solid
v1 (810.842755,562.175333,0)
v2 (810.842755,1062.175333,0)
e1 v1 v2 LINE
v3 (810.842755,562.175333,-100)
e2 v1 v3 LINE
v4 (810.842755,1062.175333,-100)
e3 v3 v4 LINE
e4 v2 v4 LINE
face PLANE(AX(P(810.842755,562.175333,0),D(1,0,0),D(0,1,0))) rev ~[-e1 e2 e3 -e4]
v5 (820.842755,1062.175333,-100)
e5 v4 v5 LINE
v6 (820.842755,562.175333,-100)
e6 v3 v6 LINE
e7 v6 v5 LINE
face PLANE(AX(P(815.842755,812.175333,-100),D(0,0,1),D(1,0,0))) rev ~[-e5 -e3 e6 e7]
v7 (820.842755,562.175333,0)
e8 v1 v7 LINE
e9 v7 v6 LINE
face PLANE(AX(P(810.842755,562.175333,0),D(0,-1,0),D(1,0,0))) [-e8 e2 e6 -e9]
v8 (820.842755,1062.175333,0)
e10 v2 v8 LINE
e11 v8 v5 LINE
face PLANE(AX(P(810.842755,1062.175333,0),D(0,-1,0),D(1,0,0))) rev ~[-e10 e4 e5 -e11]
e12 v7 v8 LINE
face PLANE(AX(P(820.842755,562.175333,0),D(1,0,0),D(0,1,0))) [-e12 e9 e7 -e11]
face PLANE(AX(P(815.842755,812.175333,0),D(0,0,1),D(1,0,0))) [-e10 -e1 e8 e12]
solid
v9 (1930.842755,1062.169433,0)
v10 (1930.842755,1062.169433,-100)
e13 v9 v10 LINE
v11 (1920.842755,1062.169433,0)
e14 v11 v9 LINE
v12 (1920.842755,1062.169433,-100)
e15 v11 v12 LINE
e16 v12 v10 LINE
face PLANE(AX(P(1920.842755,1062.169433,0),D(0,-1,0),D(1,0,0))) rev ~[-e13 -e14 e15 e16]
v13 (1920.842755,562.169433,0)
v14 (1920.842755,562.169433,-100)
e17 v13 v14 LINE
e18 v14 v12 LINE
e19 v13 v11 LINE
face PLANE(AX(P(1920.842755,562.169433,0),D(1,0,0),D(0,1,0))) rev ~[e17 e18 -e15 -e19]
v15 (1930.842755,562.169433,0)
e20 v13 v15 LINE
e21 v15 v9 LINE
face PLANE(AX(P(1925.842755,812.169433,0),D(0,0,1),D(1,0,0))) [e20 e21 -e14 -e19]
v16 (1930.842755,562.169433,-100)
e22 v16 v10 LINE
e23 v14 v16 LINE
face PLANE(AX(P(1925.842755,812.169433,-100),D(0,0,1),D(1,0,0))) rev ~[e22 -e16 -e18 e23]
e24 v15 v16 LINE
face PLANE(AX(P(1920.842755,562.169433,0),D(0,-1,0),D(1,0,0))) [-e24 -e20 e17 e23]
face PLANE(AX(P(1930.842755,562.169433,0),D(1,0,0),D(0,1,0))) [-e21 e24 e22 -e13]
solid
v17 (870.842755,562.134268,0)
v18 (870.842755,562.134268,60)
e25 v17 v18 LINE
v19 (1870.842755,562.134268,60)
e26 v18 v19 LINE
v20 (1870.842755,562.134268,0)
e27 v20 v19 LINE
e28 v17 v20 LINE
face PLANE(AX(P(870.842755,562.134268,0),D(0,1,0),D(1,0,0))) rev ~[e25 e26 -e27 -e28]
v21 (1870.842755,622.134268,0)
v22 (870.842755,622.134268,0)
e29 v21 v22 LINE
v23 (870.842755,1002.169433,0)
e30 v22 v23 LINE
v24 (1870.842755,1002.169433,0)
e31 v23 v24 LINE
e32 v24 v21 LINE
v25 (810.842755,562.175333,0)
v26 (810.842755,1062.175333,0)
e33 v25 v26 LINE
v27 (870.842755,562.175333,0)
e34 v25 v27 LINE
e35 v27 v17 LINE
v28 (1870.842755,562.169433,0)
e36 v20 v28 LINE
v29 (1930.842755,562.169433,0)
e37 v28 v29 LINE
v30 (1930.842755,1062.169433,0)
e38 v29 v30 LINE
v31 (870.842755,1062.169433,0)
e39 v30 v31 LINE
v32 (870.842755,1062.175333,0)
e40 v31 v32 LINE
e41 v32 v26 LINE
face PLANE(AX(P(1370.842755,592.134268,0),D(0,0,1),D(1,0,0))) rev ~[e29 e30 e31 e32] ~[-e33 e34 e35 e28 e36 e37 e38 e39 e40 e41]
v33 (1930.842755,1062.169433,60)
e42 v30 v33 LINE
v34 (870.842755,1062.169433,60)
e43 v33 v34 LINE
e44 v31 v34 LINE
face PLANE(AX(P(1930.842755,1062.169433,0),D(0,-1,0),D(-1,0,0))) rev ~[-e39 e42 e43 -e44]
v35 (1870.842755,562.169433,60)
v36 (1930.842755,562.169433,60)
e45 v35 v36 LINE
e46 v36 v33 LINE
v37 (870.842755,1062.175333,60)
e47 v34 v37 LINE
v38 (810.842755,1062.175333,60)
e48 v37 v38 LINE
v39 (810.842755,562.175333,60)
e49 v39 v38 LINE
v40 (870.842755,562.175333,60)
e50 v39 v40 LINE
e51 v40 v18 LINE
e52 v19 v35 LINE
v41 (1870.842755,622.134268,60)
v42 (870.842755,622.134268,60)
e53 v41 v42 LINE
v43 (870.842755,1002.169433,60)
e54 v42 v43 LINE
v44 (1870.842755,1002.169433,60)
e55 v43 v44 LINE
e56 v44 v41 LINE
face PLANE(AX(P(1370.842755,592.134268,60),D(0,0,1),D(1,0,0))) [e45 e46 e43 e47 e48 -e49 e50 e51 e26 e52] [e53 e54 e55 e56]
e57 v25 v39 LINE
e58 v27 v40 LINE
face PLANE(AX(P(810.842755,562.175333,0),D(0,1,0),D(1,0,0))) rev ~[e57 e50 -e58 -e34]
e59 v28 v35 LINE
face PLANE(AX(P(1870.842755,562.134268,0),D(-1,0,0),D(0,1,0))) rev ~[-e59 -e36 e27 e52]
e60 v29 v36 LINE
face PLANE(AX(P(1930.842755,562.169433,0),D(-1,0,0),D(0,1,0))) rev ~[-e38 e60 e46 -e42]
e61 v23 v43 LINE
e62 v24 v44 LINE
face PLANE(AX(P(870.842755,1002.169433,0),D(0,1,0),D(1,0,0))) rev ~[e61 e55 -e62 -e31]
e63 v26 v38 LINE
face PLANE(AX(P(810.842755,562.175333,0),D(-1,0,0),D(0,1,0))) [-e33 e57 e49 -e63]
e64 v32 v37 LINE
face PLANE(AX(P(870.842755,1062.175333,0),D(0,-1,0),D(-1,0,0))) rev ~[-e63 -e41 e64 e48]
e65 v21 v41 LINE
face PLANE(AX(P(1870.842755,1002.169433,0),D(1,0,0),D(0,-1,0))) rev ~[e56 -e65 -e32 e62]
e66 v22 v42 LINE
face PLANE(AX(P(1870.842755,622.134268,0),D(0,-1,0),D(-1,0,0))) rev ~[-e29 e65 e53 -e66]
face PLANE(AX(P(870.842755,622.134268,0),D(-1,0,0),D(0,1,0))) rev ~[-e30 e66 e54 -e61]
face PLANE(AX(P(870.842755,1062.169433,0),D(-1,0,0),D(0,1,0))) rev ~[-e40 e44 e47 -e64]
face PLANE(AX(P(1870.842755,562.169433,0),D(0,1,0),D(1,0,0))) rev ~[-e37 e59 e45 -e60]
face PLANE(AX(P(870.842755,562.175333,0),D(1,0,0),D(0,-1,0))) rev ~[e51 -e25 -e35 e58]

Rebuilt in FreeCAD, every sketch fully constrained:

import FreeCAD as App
import Part
import Sketcher
from FreeCAD import Vector


def add_polygon(sketch, points):
    """Adds a closed chain of lines whose ends are joined by coincident constraints."""
    first, n = sketch.GeometryCount, len(points)
    for a, b in zip(points, points[1:] + points[:1]):
        sketch.addGeometry(Part.LineSegment(App.Vector(*a, 0), App.Vector(*b, 0)), False)
    for i in range(n):
        sketch.addConstraint(Sketcher.Constraint("Coincident", first + i, 2, first + (i + 1) % n, 1))

doc = App.newDocument("Part")
body = doc.addObject("PartDesign::Body", "Body")

# Sketch on XY plane
sketch1 = body.newObject("Sketcher::SketchObject", "Sketch")
sketch1.AttachmentSupport = (doc.getObject("XY_Plane"), [""])
sketch1.MapMode = "FlatFace"
add_polygon(sketch1, [(870.843, 1062.169), (870.843, 1062.175), (810.843, 1062.175), (810.843, 562.175), (870.843, 562.175), (870.843, 562.134), (1870.843, 562.134), (1870.843, 562.169), (1930.843, 562.169), (1930.843, 1062.169)])  # lines 0-9
add_polygon(sketch1, [(1870.843, 622.134), (870.843, 622.134), (870.843, 1002.169), (1870.843, 1002.169)])  # lines 10-13
sketch1.addConstraint([
    Sketcher.Constraint("Vertical", 0),
    Sketcher.Constraint("Horizontal", 1),
    Sketcher.Constraint("Vertical", 2),
    Sketcher.Constraint("Horizontal", 3),
    Sketcher.Constraint("Vertical", 4),
    Sketcher.Constraint("Horizontal", 5),
    Sketcher.Constraint("Vertical", 6),
    Sketcher.Constraint("Horizontal", 7),
    Sketcher.Constraint("Vertical", 8),
    Sketcher.Constraint("Horizontal", 9),
    Sketcher.Constraint("Horizontal", 10),
    Sketcher.Constraint("Vertical", 11),
    Sketcher.Constraint("Horizontal", 12),
    Sketcher.Constraint("Vertical", 13),
    Sketcher.Constraint("Vertical", 0, 2, 3, 2),
    Sketcher.Constraint("Vertical", 9, 2, 10, 2),
    Sketcher.Constraint("Vertical", 6, 2, 12, 2),
    Sketcher.Constraint("Equal", 3, 7),
    Sketcher.Constraint("Equal", 2, 8),
    Sketcher.Constraint("DistanceX", 1, 2, 1, 1, 60.0),
    Sketcher.Constraint("DistanceX", 5, 1, 5, 2, 1000.0),
    Sketcher.Constraint("DistanceY", 2, 2, 2, 1, 500.0),
    Sketcher.Constraint("DistanceY", 4, 2, 10, 2, 60.0),
    Sketcher.Constraint("DistanceY", 11, 2, 9, 2, 60.0),
    Sketcher.Constraint("DistanceY", 0, 1, 0, 2, 0.0059),
    Sketcher.Constraint("DistanceY", 4, 2, 4, 1, 0.041065),
    Sketcher.Constraint("DistanceY", -1, 1, 4, 2, 562.134268),
    Sketcher.Constraint("DistanceX", -1, 1, 0, 2, 870.842755),
])
pad1 = body.newObject("PartDesign::Pad", "Pad")
pad1.Profile = sketch1
pad1.Length = 60
body2 = doc.addObject("PartDesign::Body", "Body001")
body2.AllowCompound = True

# Sketch on XY plane
sketch2 = body2.newObject("Sketcher::SketchObject", "Sketch001")
sketch2.AttachmentSupport = (doc.getObject("XY_Plane001"), [""])
sketch2.MapMode = "FlatFace"
add_polygon(sketch2, [(1921, 1062), (1921, 562), (1931, 562), (1931, 1062)])  # lines 0-3
add_polygon(sketch2, [(811, 1062), (811, 562), (821, 562), (821, 1062)])  # lines 4-7
sketch2.addConstraint([
    Sketcher.Constraint("Vertical", 0),
    Sketcher.Constraint("Horizontal", 1),
    Sketcher.Constraint("Vertical", 2),
    Sketcher.Constraint("Horizontal", 3),
    Sketcher.Constraint("Vertical", 4),
    Sketcher.Constraint("Horizontal", 5),
    Sketcher.Constraint("Vertical", 6),
    Sketcher.Constraint("Horizontal", 7),
    Sketcher.Constraint("Equal", 3, 5),
    Sketcher.Constraint("Equal", 2, 4),
    Sketcher.Constraint("DistanceX", 1, 1, 1, 2, 10.0),
    Sketcher.Constraint("DistanceY", 0, 2, 0, 1, 500.0),
    Sketcher.Constraint("DistanceX", 4, 2, 0, 2, 1110.0),
    Sketcher.Constraint("DistanceY", 0, 2, 4, 2, 0.0059),
    Sketcher.Constraint("DistanceX", -1, 1, 0, 2, 1920.842755),
    Sketcher.Constraint("DistanceY", -1, 1, 0, 2, 562.169433),
])
pad2 = body2.newObject("PartDesign::Pad", "Pad001")
pad2.Profile = sketch2
pad2.Length = 100
pad2.Reversed = True

doc.recompute()
